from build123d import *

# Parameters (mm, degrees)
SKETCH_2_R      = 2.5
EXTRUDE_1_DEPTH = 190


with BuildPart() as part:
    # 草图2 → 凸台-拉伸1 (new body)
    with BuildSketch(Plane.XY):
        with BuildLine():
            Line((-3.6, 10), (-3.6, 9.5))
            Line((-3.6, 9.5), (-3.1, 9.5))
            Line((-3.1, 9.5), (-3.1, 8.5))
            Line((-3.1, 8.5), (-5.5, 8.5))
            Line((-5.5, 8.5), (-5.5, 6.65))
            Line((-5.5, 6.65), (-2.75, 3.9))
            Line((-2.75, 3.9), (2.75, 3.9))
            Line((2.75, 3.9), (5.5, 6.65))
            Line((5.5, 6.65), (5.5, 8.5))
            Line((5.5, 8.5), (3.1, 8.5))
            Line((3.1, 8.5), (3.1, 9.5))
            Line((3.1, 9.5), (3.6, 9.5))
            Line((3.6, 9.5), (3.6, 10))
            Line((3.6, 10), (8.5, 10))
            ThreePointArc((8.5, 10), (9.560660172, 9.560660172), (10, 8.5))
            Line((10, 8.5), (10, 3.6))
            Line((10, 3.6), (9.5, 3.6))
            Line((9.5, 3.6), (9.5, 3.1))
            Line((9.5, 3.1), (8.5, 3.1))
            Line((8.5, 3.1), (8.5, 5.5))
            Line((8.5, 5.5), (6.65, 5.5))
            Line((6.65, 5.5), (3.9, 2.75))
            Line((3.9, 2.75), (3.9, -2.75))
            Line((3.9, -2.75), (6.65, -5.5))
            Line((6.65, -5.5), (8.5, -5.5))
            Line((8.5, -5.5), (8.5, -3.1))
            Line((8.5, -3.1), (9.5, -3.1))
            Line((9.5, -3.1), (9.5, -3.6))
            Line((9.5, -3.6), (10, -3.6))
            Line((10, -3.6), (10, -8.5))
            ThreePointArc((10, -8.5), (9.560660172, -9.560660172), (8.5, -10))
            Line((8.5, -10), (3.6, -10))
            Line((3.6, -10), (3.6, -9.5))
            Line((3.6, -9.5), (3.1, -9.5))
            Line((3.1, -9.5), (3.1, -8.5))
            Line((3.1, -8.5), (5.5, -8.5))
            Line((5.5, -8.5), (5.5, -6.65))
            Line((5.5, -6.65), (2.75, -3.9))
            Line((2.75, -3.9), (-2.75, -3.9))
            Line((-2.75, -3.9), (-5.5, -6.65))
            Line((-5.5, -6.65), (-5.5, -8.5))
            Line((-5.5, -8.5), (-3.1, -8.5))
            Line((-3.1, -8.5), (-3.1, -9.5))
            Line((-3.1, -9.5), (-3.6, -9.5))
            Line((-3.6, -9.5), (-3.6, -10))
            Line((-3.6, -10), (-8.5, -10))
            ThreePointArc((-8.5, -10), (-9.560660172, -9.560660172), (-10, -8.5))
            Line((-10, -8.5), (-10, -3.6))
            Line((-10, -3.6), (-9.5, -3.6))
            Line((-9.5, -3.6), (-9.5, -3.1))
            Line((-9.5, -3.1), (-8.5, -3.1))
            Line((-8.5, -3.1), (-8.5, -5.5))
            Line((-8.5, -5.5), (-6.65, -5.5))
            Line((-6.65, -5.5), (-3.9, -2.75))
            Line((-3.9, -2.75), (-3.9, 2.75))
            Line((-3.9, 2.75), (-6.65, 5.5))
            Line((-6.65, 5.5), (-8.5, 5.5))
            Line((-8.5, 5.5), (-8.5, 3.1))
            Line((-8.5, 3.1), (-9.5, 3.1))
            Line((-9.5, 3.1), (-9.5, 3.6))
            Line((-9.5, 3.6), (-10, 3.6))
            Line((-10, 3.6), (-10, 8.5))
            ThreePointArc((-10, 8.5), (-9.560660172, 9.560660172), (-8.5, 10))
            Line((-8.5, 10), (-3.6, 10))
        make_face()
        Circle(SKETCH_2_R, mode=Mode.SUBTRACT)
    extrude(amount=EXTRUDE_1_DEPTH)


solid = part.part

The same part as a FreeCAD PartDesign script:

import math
import FreeCAD as App
import Part
import Sketcher

doc = App.newDocument("Part")
body = doc.addObject("PartDesign::Body", "Body")

# Sketch on XY plane
sketch1 = body.newObject("Sketcher::SketchObject", "Sketch")
sketch1.AttachmentSupport = (doc.getObject("XY_Plane"), [""])
sketch1.MapMode = "FlatFace"
sketch1.addGeometry([
    Part.LineSegment(App.Vector(-3.6, 9.5, 0), App.Vector(-3.6, 10, 0)),  # 0
    Part.LineSegment(App.Vector(-3.6, 10, 0), App.Vector(-8.5, 10, 0)),  # 1
    Part.ArcOfCircle(Part.Circle(App.Vector(-8.5, 8.5, 0), App.Vector(0, 0, 1), 1.5), math.radians(90), math.radians(180)),  # 2
    Part.LineSegment(App.Vector(-10, 8.5, 0), App.Vector(-10, 3.6, 0)),  # 3
    Part.LineSegment(App.Vector(-10, 3.6, 0), App.Vector(-9.5, 3.6, 0)),  # 4
    Part.LineSegment(App.Vector(-9.5, 3.6, 0), App.Vector(-9.5, 3.1, 0)),  # 5
    Part.LineSegment(App.Vector(-9.5, 3.1, 0), App.Vector(-8.5, 3.1, 0)),  # 6
    Part.LineSegment(App.Vector(-8.5, 3.1, 0), App.Vector(-8.5, 5.5, 0)),  # 7
    Part.LineSegment(App.Vector(-8.5, 5.5, 0), App.Vector(-6.7, 5.5, 0)),  # 8
    Part.LineSegment(App.Vector(-6.7, 5.5, 0), App.Vector(-3.9, 2.8, 0)),  # 9
    Part.LineSegment(App.Vector(-3.9, 2.8, 0), App.Vector(-3.9, -2.8, 0)),  # 10
    Part.LineSegment(App.Vector(-3.9, -2.8, 0), App.Vector(-6.7, -5.5, 0)),  # 11
    Part.LineSegment(App.Vector(-6.7, -5.5, 0), App.Vector(-8.5, -5.5, 0)),  # 12
    Part.LineSegment(App.Vector(-8.5, -5.5, 0), App.Vector(-8.5, -3.1, 0)),  # 13
    Part.LineSegment(App.Vector(-8.5, -3.1, 0), App.Vector(-9.5, -3.1, 0)),  # 14
    Part.LineSegment(App.Vector(-9.5, -3.1, 0), App.Vector(-9.5, -3.6, 0)),  # 15
    Part.LineSegment(App.Vector(-9.5, -3.6, 0), App.Vector(-10, -3.6, 0)),  # 16
    Part.LineSegment(App.Vector(-10, -3.6, 0), App.Vector(-10, -8.5, 0)),  # 17
    Part.ArcOfCircle(Part.Circle(App.Vector(-8.5, -8.5, 0), App.Vector(0, 0, 1), 1.5), math.radians(180), math.radians(270)),  # 18
    Part.LineSegment(App.Vector(-8.5, -10, 0), App.Vector(-3.6, -10, 0)),  # 19
    Part.LineSegment(App.Vector(-3.6, -10, 0), App.Vector(-3.6, -9.5, 0)),  # 20
    Part.LineSegment(App.Vector(-3.6, -9.5, 0), App.Vector(-3.1, -9.5, 0)),  # 21
    Part.LineSegment(App.Vector(-3.1, -9.5, 0), App.Vector(-3.1, -8.5, 0)),  # 22
    Part.LineSegment(App.Vector(-3.1, -8.5, 0), App.Vector(-5.5, -8.5, 0)),  # 23
    Part.LineSegment(App.Vector(-5.5, -8.5, 0), App.Vector(-5.5, -6.7, 0)),  # 24
    Part.LineSegment(App.Vector(-5.5, -6.7, 0), App.Vector(-2.8, -3.9, 0)),  # 25
    Part.LineSegment(App.Vector(-2.8, -3.9, 0), App.Vector(2.8, -3.9, 0)),  # 26
    Part.LineSegment(App.Vector(2.8, -3.9, 0), App.Vector(5.5, -6.7, 0)),  # 27
    Part.LineSegment(App.Vector(5.5, -6.7, 0), App.Vector(5.5, -8.5, 0)),  # 28
    Part.LineSegment(App.Vector(5.5, -8.5, 0), App.Vector(3.1, -8.5, 0)),  # 29
    Part.LineSegment(App.Vector(3.1, -8.5, 0), App.Vector(3.1, -9.5, 0)),  # 30
    Part.LineSegment(App.Vector(3.1, -9.5, 0), App.Vector(3.6, -9.5, 0)),  # 31
    Part.LineSegment(App.Vector(3.6, -9.5, 0), App.Vector(3.6, -10, 0)),  # 32
    Part.LineSegment(App.Vector(3.6, -10, 0), App.Vector(8.5, -10, 0)),  # 33
    Part.ArcOfCircle(Part.Circle(App.Vector(8.5, -8.5, 0), App.Vector(0, 0, 1), 1.5), math.radians(-90), math.radians(0)),  # 34
    Part.LineSegment(App.Vector(10, -8.5, 0), App.Vector(10, -3.6, 0)),  # 35
    Part.LineSegment(App.Vector(10, -3.6, 0), App.Vector(9.5, -3.6, 0)),  # 36
    Part.LineSegment(App.Vector(9.5, -3.6, 0), App.Vector(9.5, -3.1, 0)),  # 37
    Part.LineSegment(App.Vector(9.5, -3.1, 0), App.Vector(8.5, -3.1, 0)),  # 38
    Part.LineSegment(App.Vector(8.5, -3.1, 0), App.Vector(8.5, -5.5, 0)),  # 39
    Part.LineSegment(App.Vector(8.5, -5.5, 0), App.Vector(6.7, -5.5, 0)),  # 40
    Part.LineSegment(App.Vector(6.7, -5.5, 0), App.Vector(3.9, -2.8, 0)),  # 41
    Part.LineSegment(App.Vector(3.9, -2.8, 0), App.Vector(3.9, 2.8, 0)),  # 42
    Part.LineSegment(App.Vector(3.9, 2.8, 0), App.Vector(6.7, 5.5, 0)),  # 43
    Part.LineSegment(App.Vector(6.7, 5.5, 0), App.Vector(8.5, 5.5, 0)),  # 44
    Part.LineSegment(App.Vector(8.5, 5.5, 0), App.Vector(8.5, 3.1, 0)),  # 45
    Part.LineSegment(App.Vector(8.5, 3.1, 0), App.Vector(9.5, 3.1, 0)),  # 46
    Part.LineSegment(App.Vector(9.5, 3.1, 0), App.Vector(9.5, 3.6, 0)),  # 47
    Part.LineSegment(App.Vector(9.5, 3.6, 0), App.Vector(10, 3.6, 0)),  # 48
    Part.LineSegment(App.Vector(10, 3.6, 0), App.Vector(10, 8.5, 0)),  # 49
    Part.ArcOfCircle(Part.Circle(App.Vector(8.5, 8.5, 0), App.Vector(0, 0, 1), 1.5), math.radians(0), math.radians(90)),  # 50
    Part.LineSegment(App.Vector(8.5, 10, 0), App.Vector(3.6, 10, 0)),  # 51
    Part.LineSegment(App.Vector(3.6, 10, 0), App.Vector(3.6, 9.5, 0)),  # 52
    Part.LineSegment(App.Vector(3.6, 9.5, 0), App.Vector(3.1, 9.5, 0)),  # 53
    Part.LineSegment(App.Vector(3.1, 9.5, 0), App.Vector(3.1, 8.5, 0)),  # 54
    Part.LineSegment(App.Vector(3.1, 8.5, 0), App.Vector(5.5, 8.5, 0)),  # 55
    Part.LineSegment(App.Vector(5.5, 8.5, 0), App.Vector(5.5, 6.7, 0)),  # 56
    Part.LineSegment(App.Vector(5.5, 6.7, 0), App.Vector(2.8, 3.9, 0)),  # 57
    Part.LineSegment(App.Vector(2.8, 3.9, 0), App.Vector(-2.8, 3.9, 0)),  # 58
    Part.LineSegment(App.Vector(-2.8, 3.9, 0), App.Vector(-5.5, 6.7, 0)),  # 59
    Part.LineSegment(App.Vector(-5.5, 6.7, 0), App.Vector(-5.5, 8.5, 0)),  # 60
    Part.LineSegment(App.Vector(-5.5, 8.5, 0), App.Vector(-3.1, 8.5, 0)),  # 61
    Part.LineSegment(App.Vector(-3.1, 8.5, 0), App.Vector(-3.1, 9.5, 0)),  # 62
    Part.LineSegment(App.Vector(-3.1, 9.5, 0), App.Vector(-3.6, 9.5, 0)),  # 63
    Part.Circle(App.Vector(0, 0, 0), App.Vector(0, 0, 1), 2.5),  # 64
], False)
sketch1.addConstraint([
    Sketcher.Constraint("Coincident", 0, 2, 1, 1),
    Sketcher.Constraint("Tangent", 1, 2, 2, 1),
    Sketcher.Constraint("Tangent", 2, 2, 3, 1),
    Sketcher.Constraint("Coincident", 3, 2, 4, 1),
    Sketcher.Constraint("Coincident", 4, 2, 5, 1),
    Sketcher.Constraint("Coincident", 5, 2, 6, 1),
    Sketcher.Constraint("Coincident", 6, 2, 7, 1),
    Sketcher.Constraint("Coincident", 7, 2, 8, 1),
    Sketcher.Constraint("Coincident", 8, 2, 9, 1),
    Sketcher.Constraint("Coincident", 9, 2, 10, 1),
    Sketcher.Constraint("Coincident", 10, 2, 11, 1),
    Sketcher.Constraint("Coincident", 11, 2, 12, 1),
    Sketcher.Constraint("Coincident", 12, 2, 13, 1),
    Sketcher.Constraint("Coincident", 13, 2, 14, 1),
    Sketcher.Constraint("Coincident", 14, 2, 15, 1),
    Sketcher.Constraint("Coincident", 15, 2, 16, 1),
    Sketcher.Constraint("Coincident", 16, 2, 17, 1),
    Sketcher.Constraint("Tangent", 17, 2, 18, 1),
    Sketcher.Constraint("Tangent", 18, 2, 19, 1),
    Sketcher.Constraint("Coincident", 19, 2, 20, 1),
    Sketcher.Constraint("Coincident", 20, 2, 21, 1),
    Sketcher.Constraint("Coincident", 21, 2, 22, 1),
    Sketcher.Constraint("Coincident", 22, 2, 23, 1),
    Sketcher.Constraint("Coincident", 23, 2, 24, 1),
    Sketcher.Constraint("Coincident", 24, 2, 25, 1),
    Sketcher.Constraint("Coincident", 25, 2, 26, 1),
    Sketcher.Constraint("Coincident", 26, 2, 27, 1),
    Sketcher.Constraint("Coincident", 27, 2, 28, 1),
    Sketcher.Constraint("Coincident", 28, 2, 29, 1),
    Sketcher.Constraint("Coincident", 29, 2, 30, 1),
    Sketcher.Constraint("Coincident", 30, 2, 31, 1),
    Sketcher.Constraint("Coincident", 31, 2, 32, 1),
    Sketcher.Constraint("Coincident", 32, 2, 33, 1),
    Sketcher.Constraint("Tangent", 33, 2, 34, 1),
    Sketcher.Constraint("Tangent", 34, 2, 35, 1),
    Sketcher.Constraint("Coincident", 35, 2, 36, 1),
    Sketcher.Constraint("Coincident", 36, 2, 37, 1),
    Sketcher.Constraint("Coincident", 37, 2, 38, 1),
    Sketcher.Constraint("Coincident", 38, 2, 39, 1),
    Sketcher.Constraint("Coincident", 39, 2, 40, 1),
    Sketcher.Constraint("Coincident", 40, 2, 41, 1),
    Sketcher.Constraint("Coincident", 41, 2, 42, 1),
    Sketcher.Constraint("Coincident", 42, 2, 43, 1),
    Sketcher.Constraint("Coincident", 43, 2, 44, 1),
    Sketcher.Constraint("Coincident", 44, 2, 45, 1),
    Sketcher.Constraint("Coincident", 45, 2, 46, 1),
    Sketcher.Constraint("Coincident", 46, 2, 47, 1),
    Sketcher.Constraint("Coincident", 47, 2, 48, 1),
    Sketcher.Constraint("Coincident", 48, 2, 49, 1),
    Sketcher.Constraint("Tangent", 49, 2, 50, 1),
    Sketcher.Constraint("Tangent", 50, 2, 51, 1),
    Sketcher.Constraint("Coincident", 51, 2, 52, 1),
    Sketcher.Constraint("Coincident", 52, 2, 53, 1),
    Sketcher.Constraint("Coincident", 53, 2, 54, 1),
    Sketcher.Constraint("Coincident", 54, 2, 55, 1),
    Sketcher.Constraint("Coincident", 55, 2, 56, 1),
    Sketcher.Constraint("Coincident", 56, 2, 57, 1),
    Sketcher.Constraint("Coincident", 57, 2, 58, 1),
    Sketcher.Constraint("Coincident", 58, 2, 59, 1),
    Sketcher.Constraint("Coincident", 59, 2, 60, 1),
    Sketcher.Constraint("Coincident", 60, 2, 61, 1),
    Sketcher.Constraint("Coincident", 61, 2, 62, 1),
    Sketcher.Constraint("Coincident", 62, 2, 63, 1),
    Sketcher.Constraint("Coincident", 63, 2, 0, 1),
    Sketcher.Constraint("Vertical", 0),
    Sketcher.Constraint("Horizontal", 1),
    Sketcher.Constraint("Vertical", 3),
    Sketcher.Constraint("Horizontal", 4),
    Sketcher.Constraint("Vertical", 5),
    Sketcher.Constraint("Horizontal", 6),
    Sketcher.Constraint("Vertical", 7),
    Sketcher.Constraint("Horizontal", 8),
    Sketcher.Constraint("Vertical", 10),
    Sketcher.Constraint("Horizontal", 12),
    Sketcher.Constraint("Vertical", 13),
    Sketcher.Constraint("Horizontal", 14),
    Sketcher.Constraint("Vertical", 15),
    Sketcher.Constraint("Horizontal", 16),
    Sketcher.Constraint("Vertical", 17),
    Sketcher.Constraint("Horizontal", 19),
    Sketcher.Constraint("Vertical", 20),
    Sketcher.Constraint("Horizontal", 21),
    Sketcher.Constraint("Vertical", 22),
    Sketcher.Constraint("Horizontal", 23),
    Sketcher.Constraint("Vertical", 24),
    Sketcher.Constraint("Horizontal", 26),
    Sketcher.Constraint("Vertical", 28),
    Sketcher.Constraint("Horizontal", 29),
    Sketcher.Constraint("Vertical", 30),
    Sketcher.Constraint("Horizontal", 31),
    Sketcher.Constraint("Vertical", 32),
    Sketcher.Constraint("Horizontal", 33),
    Sketcher.Constraint("Vertical", 35),
    Sketcher.Constraint("Horizontal", 36),
    Sketcher.Constraint("Vertical", 37),
    Sketcher.Constraint("Horizontal", 38),
    Sketcher.Constraint("Vertical", 39),
    Sketcher.Constraint("Horizontal", 40),
    Sketcher.Constraint("Vertical", 42),
    Sketcher.Constraint("Horizontal", 44),
    Sketcher.Constraint("Vertical", 45),
    Sketcher.Constraint("Horizontal", 46),
    Sketcher.Constraint("Vertical", 47),
    Sketcher.Constraint("Horizontal", 48),
    Sketcher.Constraint("Vertical", 49),
    Sketcher.Constraint("Horizontal", 51),
    Sketcher.Constraint("Vertical", 52),
    Sketcher.Constraint("Horizontal", 53),
    Sketcher.Constraint("Vertical", 54),
    Sketcher.Constraint("Horizontal", 55),
    Sketcher.Constraint("Vertical", 56),
    Sketcher.Constraint("Horizontal", 58),
    Sketcher.Constraint("Vertical", 60),
    Sketcher.Constraint("Horizontal", 61),
    Sketcher.Constraint("Vertical", 62),
    Sketcher.Constraint("Horizontal", 63),
    Sketcher.Constraint("Coincident", 64, 3, -1, 1),
    Sketcher.Constraint("Equal", 2, 18),
    Sketcher.Constraint("Equal", 18, 34),
    Sketcher.Constraint("Equal", 34, 50),
    Sketcher.Constraint("Symmetric", 2, 3, 34, 3, -1, 1),
    Sketcher.Constraint("Symmetric", 18, 3, 50, 3, -1, 1),
    Sketcher.Constraint("Symmetric", 4, 2, 36, 2, -1, 1),
    Sketcher.Constraint("Symmetric", 6, 2, 38, 2, -1, 1),
    Sketcher.Constraint("Symmetric", 8, 2, 40, 2, -1, 1),
    Sketcher.Constraint("Symmetric", 9, 2, 41, 2, -1, 1),
    Sketcher.Constraint("Symmetric", 11, 2, 43, 2, -1, 1),
    Sketcher.Constraint("Symmetric", 13, 2, 45, 2, -1, 1),
    Sketcher.Constraint("Symmetric", 15, 2, 47, 2, -1, 1),
    Sketcher.Constraint("Symmetric", 20, 2, 52, 2, -1, 1),
    Sketcher.Constraint("Symmetric", 22, 2, 54, 2, -1, 1),
    Sketcher.Constraint("Symmetric", 24, 2, 56, 2, -1, 1),
    Sketcher.Constraint("Symmetric", 25, 2, 57, 2, -1, 1),
    Sketcher.Constraint("Symmetric", 27, 2, 59, 2, -1, 1),
    Sketcher.Constraint("Symmetric", 29, 2, 61, 2, -1, 1),
    Sketcher.Constraint("Symmetric", 31, 2, 63, 2, -1, 1),
    Sketcher.Constraint("Symmetric", 18, 3, 34, 3, -2),
    Sketcher.Constraint("Symmetric", 24, 2, 27, 2, -2),
    Sketcher.Constraint("Symmetric", 22, 2, 29, 2, -2),
    Sketcher.Constraint("Symmetric", 20, 2, 31, 2, -2),
    Sketcher.Constraint("Symmetric", 15, 2, 36, 2, -2),
    Sketcher.Constraint("Symmetric", 13, 2, 38, 2, -2),
    Sketcher.Constraint("Symmetric", 11, 2, 40, 2, -2),
    Sketcher.Constraint("Perpendicular", 9, 11),
    Sketcher.Constraint("Parallel", 11, 25),
    Sketcher.Constraint("Perpendicular", 25, 27),
    Sketcher.Constraint("Perpendicular", 41, 43),
    Sketcher.Constraint("Perpendicular", 57, 59),
    Sketcher.Constraint("Horizontal", 17, 2, 22, 2),
    Sketcher.Constraint("Horizontal", 10, 2, 41, 2),
    Sketcher.Constraint("Vertical", 1, 2, 6, 2),
    Sketcher.Constraint("Equal", 16, 21),
    Sketcher.Constraint("Equal", 63, 0),
    Sketcher.Constraint("Equal", 51, 3),
    Sketcher.Constraint("Equal", 0, 5),
    Sketcher.Constraint("Equal", 61, 7),
    Sketcher.Constraint("Equal", 58, 10),
    Sketcher.Constraint("Equal", 44, 24),
    Sketcher.Constraint("Equal", 11, 25),
    Sketcher.Constraint("Diameter", 64, 5.0),
    Sketcher.Constraint("Radius", 2, 1.5),
    Sketcher.Constraint("DistanceX", 6, 1, 6, 2, 1.0),
    Sketcher.Constraint("DistanceX", 1, 2, 1, 1, 4.9),
    Sketcher.Constraint("DistanceX", 23, 2, 23, 1, 2.4),
    Sketcher.Constraint("DistanceX", 26, 1, 26, 2, 5.5),
    Sketcher.Constraint("DistanceY", -1, 1, 0, 2, 10.0),
    Sketcher.Constraint("DistanceX", 8, 1, 8, 2, 1.85),
])
pad1 = body.newObject("PartDesign::Pad", "Pad")
pad1.Profile = sketch1
pad1.Length = 190

doc.recompute()
